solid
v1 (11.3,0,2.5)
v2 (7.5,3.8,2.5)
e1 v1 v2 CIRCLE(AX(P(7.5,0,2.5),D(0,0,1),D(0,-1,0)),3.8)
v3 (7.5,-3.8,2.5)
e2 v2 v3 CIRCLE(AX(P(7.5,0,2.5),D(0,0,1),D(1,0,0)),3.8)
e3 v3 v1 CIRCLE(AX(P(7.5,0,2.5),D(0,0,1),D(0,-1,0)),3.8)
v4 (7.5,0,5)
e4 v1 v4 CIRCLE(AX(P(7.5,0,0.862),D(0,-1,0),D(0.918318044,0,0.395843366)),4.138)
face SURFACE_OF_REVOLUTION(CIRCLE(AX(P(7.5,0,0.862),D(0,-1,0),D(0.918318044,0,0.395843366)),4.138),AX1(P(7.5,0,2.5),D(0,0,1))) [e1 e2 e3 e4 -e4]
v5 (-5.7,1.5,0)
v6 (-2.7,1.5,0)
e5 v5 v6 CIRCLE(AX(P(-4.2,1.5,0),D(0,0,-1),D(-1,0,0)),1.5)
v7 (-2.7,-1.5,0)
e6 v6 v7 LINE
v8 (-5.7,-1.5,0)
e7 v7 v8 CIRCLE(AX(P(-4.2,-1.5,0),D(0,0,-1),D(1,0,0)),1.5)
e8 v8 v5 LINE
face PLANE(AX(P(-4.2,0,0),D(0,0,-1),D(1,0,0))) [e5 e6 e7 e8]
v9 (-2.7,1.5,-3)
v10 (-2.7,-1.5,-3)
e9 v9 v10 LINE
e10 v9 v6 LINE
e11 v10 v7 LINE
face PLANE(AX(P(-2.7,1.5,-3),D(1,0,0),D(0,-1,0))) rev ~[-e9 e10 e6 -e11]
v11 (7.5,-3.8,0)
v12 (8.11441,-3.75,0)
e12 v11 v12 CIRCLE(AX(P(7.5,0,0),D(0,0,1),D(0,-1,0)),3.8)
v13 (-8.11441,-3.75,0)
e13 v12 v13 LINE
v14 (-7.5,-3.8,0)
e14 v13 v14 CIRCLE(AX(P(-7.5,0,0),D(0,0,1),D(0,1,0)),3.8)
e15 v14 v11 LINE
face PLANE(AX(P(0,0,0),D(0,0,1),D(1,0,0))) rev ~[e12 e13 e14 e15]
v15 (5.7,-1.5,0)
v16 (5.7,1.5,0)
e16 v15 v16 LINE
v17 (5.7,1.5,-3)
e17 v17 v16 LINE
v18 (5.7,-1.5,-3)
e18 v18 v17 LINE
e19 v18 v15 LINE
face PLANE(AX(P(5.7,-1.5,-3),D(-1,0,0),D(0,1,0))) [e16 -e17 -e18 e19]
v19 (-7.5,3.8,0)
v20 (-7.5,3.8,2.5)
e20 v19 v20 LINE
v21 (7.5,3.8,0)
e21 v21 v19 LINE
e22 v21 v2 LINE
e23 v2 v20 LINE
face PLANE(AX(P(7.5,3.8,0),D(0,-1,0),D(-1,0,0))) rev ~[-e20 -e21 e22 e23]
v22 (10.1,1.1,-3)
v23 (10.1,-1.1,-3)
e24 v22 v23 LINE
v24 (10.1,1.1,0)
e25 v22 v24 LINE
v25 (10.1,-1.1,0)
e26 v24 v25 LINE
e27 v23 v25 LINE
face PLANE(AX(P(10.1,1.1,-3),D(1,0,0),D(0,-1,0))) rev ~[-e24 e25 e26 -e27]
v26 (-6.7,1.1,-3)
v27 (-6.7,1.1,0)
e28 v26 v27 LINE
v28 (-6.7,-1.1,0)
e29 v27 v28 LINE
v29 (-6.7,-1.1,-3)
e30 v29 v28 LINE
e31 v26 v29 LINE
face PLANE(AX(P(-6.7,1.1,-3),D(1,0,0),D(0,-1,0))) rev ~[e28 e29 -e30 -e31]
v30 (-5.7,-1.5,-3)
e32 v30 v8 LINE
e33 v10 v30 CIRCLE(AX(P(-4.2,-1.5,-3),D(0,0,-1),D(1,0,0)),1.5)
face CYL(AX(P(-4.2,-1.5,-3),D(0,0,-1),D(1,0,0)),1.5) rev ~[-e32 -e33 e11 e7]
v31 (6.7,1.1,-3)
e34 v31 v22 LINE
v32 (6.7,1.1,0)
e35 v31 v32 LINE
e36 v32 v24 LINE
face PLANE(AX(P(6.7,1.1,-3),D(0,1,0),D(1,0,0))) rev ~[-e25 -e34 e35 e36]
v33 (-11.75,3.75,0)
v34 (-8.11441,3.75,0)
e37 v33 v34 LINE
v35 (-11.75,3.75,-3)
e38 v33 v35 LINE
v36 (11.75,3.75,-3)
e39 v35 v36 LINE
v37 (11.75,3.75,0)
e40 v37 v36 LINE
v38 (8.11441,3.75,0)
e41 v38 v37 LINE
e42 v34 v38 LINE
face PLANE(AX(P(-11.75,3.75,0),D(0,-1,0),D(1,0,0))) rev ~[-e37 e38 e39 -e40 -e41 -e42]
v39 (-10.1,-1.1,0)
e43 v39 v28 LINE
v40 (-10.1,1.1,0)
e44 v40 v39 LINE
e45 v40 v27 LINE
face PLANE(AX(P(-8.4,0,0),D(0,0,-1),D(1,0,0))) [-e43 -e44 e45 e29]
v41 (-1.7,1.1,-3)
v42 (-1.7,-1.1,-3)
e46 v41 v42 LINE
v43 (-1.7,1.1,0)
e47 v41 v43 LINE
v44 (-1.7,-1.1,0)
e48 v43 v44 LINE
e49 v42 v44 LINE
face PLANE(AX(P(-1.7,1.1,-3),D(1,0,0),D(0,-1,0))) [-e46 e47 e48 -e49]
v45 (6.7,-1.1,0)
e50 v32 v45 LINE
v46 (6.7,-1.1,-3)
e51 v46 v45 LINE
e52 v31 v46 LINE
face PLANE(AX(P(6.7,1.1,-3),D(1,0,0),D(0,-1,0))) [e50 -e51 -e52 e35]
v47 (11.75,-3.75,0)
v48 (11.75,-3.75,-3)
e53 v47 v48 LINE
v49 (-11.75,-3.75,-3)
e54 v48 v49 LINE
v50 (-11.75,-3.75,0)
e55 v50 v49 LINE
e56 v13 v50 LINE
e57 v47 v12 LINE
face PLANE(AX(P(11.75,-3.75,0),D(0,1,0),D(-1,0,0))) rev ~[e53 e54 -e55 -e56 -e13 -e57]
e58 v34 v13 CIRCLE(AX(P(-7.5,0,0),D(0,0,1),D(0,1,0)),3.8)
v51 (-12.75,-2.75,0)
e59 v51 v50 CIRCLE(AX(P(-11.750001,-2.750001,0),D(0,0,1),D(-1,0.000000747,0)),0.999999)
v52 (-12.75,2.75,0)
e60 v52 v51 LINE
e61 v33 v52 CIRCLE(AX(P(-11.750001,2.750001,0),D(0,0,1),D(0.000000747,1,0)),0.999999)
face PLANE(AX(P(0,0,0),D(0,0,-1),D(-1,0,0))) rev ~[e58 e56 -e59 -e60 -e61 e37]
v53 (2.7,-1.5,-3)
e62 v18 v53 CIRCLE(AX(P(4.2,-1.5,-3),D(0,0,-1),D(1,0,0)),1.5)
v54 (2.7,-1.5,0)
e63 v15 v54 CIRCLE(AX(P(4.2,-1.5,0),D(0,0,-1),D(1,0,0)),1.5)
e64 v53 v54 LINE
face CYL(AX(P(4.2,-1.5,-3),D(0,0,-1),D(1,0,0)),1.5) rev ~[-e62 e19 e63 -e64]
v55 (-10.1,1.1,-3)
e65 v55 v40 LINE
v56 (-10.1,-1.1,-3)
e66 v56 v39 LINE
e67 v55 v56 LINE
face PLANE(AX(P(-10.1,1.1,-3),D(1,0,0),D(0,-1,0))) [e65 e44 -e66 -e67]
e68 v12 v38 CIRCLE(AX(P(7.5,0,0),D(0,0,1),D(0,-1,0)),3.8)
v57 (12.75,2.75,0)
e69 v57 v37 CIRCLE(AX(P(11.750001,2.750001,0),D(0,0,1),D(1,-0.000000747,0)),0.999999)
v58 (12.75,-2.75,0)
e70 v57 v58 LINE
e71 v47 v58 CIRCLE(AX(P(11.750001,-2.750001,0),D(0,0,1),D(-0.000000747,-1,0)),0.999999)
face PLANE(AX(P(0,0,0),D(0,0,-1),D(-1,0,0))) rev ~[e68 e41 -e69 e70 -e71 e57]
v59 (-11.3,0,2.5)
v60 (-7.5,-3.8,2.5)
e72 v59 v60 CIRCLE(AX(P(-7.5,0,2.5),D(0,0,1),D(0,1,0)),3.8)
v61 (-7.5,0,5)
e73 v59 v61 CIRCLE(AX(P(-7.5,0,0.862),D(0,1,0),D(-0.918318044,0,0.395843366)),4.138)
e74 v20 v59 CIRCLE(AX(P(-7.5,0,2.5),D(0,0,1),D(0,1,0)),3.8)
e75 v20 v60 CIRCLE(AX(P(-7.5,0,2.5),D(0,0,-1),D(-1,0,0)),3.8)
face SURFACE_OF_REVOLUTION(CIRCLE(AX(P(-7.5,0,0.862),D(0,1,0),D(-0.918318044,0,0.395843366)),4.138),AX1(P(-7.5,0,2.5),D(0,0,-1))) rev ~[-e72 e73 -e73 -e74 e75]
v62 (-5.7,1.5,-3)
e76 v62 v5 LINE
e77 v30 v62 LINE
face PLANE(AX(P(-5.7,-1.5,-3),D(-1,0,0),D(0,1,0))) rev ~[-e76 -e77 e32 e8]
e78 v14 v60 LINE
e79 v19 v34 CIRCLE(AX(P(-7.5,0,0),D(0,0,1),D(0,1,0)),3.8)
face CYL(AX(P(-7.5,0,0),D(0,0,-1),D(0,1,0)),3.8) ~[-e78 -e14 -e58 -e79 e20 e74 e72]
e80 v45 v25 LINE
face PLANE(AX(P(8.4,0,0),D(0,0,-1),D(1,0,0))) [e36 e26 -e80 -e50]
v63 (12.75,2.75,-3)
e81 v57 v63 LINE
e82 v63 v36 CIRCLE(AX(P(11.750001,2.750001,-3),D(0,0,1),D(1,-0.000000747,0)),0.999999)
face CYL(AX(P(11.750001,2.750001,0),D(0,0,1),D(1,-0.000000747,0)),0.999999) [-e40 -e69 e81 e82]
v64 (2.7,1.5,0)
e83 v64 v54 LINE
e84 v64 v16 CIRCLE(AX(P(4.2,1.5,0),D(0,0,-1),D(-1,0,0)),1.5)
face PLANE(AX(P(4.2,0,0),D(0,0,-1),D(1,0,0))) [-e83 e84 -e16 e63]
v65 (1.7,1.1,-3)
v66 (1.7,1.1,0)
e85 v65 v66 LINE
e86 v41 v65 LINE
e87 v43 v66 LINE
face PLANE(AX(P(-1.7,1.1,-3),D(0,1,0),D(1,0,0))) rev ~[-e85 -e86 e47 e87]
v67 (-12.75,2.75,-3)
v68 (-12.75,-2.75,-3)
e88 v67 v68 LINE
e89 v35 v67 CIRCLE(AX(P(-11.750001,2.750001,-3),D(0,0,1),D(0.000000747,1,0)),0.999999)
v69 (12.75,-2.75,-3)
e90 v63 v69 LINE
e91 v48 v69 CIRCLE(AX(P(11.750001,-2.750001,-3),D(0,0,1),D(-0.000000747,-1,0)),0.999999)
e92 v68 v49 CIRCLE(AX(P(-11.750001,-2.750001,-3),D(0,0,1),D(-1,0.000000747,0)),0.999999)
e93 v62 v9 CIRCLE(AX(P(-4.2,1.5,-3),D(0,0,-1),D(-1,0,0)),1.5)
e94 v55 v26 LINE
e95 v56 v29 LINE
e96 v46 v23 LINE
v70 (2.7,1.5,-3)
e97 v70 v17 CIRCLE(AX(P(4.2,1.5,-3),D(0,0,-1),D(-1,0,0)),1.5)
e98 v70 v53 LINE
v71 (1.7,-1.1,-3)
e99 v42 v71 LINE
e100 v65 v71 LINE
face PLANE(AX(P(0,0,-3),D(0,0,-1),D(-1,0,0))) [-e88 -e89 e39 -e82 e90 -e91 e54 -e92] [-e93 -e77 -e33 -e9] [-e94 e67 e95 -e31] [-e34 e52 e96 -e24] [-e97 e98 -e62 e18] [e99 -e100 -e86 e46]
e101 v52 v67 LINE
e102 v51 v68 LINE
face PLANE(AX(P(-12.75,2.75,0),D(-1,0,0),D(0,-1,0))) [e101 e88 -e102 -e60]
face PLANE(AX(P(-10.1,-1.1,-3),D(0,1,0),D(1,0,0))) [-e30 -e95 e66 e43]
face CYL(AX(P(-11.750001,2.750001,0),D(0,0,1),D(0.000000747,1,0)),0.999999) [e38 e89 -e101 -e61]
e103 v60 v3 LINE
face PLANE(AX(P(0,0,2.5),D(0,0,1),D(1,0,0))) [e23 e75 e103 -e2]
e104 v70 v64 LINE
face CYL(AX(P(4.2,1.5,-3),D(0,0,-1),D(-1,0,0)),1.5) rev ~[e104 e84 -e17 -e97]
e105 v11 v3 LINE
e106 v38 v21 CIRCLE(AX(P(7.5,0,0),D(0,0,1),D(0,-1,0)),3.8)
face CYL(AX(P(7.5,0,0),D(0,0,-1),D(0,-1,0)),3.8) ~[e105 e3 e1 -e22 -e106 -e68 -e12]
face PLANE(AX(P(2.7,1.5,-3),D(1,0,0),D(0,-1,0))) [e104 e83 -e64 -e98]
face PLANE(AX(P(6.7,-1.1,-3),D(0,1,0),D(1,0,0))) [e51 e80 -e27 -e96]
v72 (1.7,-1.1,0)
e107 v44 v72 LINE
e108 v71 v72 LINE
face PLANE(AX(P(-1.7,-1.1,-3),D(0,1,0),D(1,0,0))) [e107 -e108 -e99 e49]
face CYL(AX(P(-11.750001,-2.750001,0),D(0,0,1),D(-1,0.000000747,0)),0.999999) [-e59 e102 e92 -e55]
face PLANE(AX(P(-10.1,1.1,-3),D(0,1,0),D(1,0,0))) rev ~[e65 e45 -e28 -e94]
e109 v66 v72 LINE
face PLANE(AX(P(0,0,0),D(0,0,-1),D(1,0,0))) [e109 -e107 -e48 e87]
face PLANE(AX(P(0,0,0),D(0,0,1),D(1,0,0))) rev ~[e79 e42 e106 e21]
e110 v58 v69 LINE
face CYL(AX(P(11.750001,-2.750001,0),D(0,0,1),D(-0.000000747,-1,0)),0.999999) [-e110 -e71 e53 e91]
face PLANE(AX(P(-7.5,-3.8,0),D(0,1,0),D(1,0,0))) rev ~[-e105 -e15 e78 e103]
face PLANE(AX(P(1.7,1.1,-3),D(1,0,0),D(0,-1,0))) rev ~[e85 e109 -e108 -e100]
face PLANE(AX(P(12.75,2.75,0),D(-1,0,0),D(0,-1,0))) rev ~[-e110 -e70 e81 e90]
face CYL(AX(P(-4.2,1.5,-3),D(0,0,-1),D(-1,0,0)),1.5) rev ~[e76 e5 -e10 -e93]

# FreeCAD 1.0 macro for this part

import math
import FreeCAD as App
import Part
import Sketcher


def add_polygon(sketch, points):
    """Adds a closed chain of lines whose ends are joined by coincident constraints."""
    first, n = sketch.GeometryCount, len(points)
    for a, b in zip(points, points[1:] + points[:1]):
        sketch.addGeometry(Part.LineSegment(App.Vector(*a, 0), App.Vector(*b, 0)), False)
    for i in range(n):
        sketch.addConstraint(Sketcher.Constraint("Coincident", first + i, 2, first + (i + 1) % n, 1))

doc = App.newDocument("Part")
body = doc.addObject("PartDesign::Body", "Body")

sketch1 = doc.addObject("Sketcher::SketchObject", "Sketch")
body.addObject(sketch1)
sketch1.AttachmentSupport = (doc.XY_Plane, [""])
sketch1.MapMode = "FlatFace"
sketch1.addGeometry([
    Part.ArcOfCircle(Part.Circle(App.Vector(-7.5, 0, 0), App.Vector(0, 0, 1), 3.8), math.radians(90), math.radians(270)),
    Part.LineSegment(App.Vector(-7.5, -3.8, 0), App.Vector(7.5, -3.8, 0)),
    Part.ArcOfCircle(Part.Circle(App.Vector(7.5, 0, 0), App.Vector(0, 0, 1), 3.8), math.radians(-90), math.radians(90)),
    Part.LineSegment(App.Vector(7.5, 3.8, 0), App.Vector(-7.5, 3.8, 0)),
], False)
sketch1.addConstraint([
    Sketcher.Constraint("Tangent", 0, 2, 1, 1),
    Sketcher.Constraint("Tangent", 1, 2, 2, 1),
    Sketcher.Constraint("Tangent", 2, 2, 3, 1),
    Sketcher.Constraint("Tangent", 3, 2, 0, 1),
    Sketcher.Constraint("Horizontal", 1),
    Sketcher.Constraint("Horizontal", 3),
    Sketcher.Constraint("Symmetric", 0, 3, 2, 3, -1, 1),
    Sketcher.Constraint("Radius", 0, 3.8),
    Sketcher.Constraint("DistanceX", 1, 1, 1, 2, 15.0),
])
pad1 = doc.addObject("PartDesign::Pad", "Pad")
body.addObject(pad1)
pad1.Profile = sketch1
pad1.Length = 2.5

sketch2 = doc.addObject("Sketcher::SketchObject", "Sketch001")
body.addObject(sketch2)
sketch2.AttachmentSupport = (doc.XY_Plane, [""])
sketch2.MapMode = "FlatFace"
sketch2.addGeometry([
    Part.LineSegment(App.Vector(11.8, 3.8, 0), App.Vector(-11.8, 3.8, 0)),
    Part.ArcOfCircle(Part.Circle(App.Vector(-11.8, 2.8, 0), App.Vector(0, 0, 1), 1), math.radians(90), math.radians(180)),
    Part.LineSegment(App.Vector(-12.8, 2.8, 0), App.Vector(-12.8, -2.8, 0)),
    Part.ArcOfCircle(Part.Circle(App.Vector(-11.8, -2.8, 0), App.Vector(0, 0, 1), 1), math.radians(180), math.radians(270)),
    Part.LineSegment(App.Vector(-11.8, -3.8, 0), App.Vector(11.8, -3.8, 0)),
    Part.ArcOfCircle(Part.Circle(App.Vector(11.8, -2.8, 0), App.Vector(0, 0, 1), 1), math.radians(-90), math.radians(0)),
    Part.LineSegment(App.Vector(12.8, -2.8, 0), App.Vector(12.8, 2.8, 0)),
    Part.ArcOfCircle(Part.Circle(App.Vector(11.8, 2.8, 0), App.Vector(0, 0, 1), 1), math.radians(0), math.radians(90)),
], False)
sketch2.addConstraint([
    Sketcher.Constraint("Tangent", 0, 2, 1, 1),
    Sketcher.Constraint("Tangent", 1, 2, 2, 1),
    Sketcher.Constraint("Tangent", 2, 2, 3, 1),
    Sketcher.Constraint("Tangent", 3, 2, 4, 1),
    Sketcher.Constraint("Tangent", 4, 2, 5, 1),
    Sketcher.Constraint("Tangent", 5, 2, 6, 1),
    Sketcher.Constraint("Tangent", 6, 2, 7, 1),
    Sketcher.Constraint("Tangent", 7, 2, 0, 1),
    Sketcher.Constraint("Horizontal", 0),
    Sketcher.Constraint("Vertical", 2),
    Sketcher.Constraint("Horizontal", 4),
    Sketcher.Constraint("Vertical", 6),
    Sketcher.Constraint("Equal", 1, 3),
    Sketcher.Constraint("Equal", 3, 5),
    Sketcher.Constraint("Equal", 5, 7),
    Sketcher.Constraint("Symmetric", 1, 3, 5, 3, -1, 1),
    Sketcher.Constraint("Radius", 1, 0.999999),
    Sketcher.Constraint("DistanceX", 0, 2, 0, 1, 23.5),
    Sketcher.Constraint("DistanceY", 2, 2, 2, 1, 5.5),
])
pad2 = doc.addObject("PartDesign::Pad", "Pad001")
body.addObject(pad2)
pad2.Profile = sketch2
pad2.Length = 3
pad2.Reversed = True

sketch3 = doc.addObject("Sketcher::SketchObject", "Sketch002")
body.addObject(sketch3)
sketch3.AttachmentSupport = (doc.XY_Plane, [""])
sketch3.MapMode = "FlatFace"
sketch3.AttachmentOffset = App.Placement(App.Vector(0, 0, -3), App.Rotation())
add_polygon(sketch3, [(-10.1, -1.1), (-10.1, 1.1), (-6.7, 1.1), (-6.7, -1.1)])
add_polygon(sketch3, [(6.7, -1.1), (6.7, 1.1), (10.1, 1.1), (10.1, -1.1)])
add_polygon(sketch3, [(-1.7, -1.1), (-1.7, 1.1), (1.7, 1.1), (1.7, -1.1)])
sketch3.addGeometry(Part.ArcOfCircle(Part.Circle(App.Vector(-4.2, -1.5, 0), App.Vector(0, 0, 1), 1.5), math.radians(180), math.radians(360)), False)
sketch3.addGeometry(Part.LineSegment(App.Vector(-5.7, -1.5, 0), App.Vector(-5.7, 1.5, 0)), False)
sketch3.addGeometry(Part.ArcOfCircle(Part.Circle(App.Vector(-4.2, 1.5, 0), App.Vector(0, 0, 1), 1.5), math.radians(0), math.radians(180)), False)
sketch3.addGeometry(Part.LineSegment(App.Vector(-2.7, 1.5, 0), App.Vector(-2.7, -1.5, 0)), False)
sketch3.addGeometry(Part.ArcOfCircle(Part.Circle(App.Vector(4.2, -1.5, 0), App.Vector(0, 0, 1), 1.5), math.radians(180), math.radians(360)), False)
sketch3.addGeometry(Part.LineSegment(App.Vector(2.7, -1.5, 0), App.Vector(2.7, 1.5, 0)), False)
sketch3.addGeometry(Part.ArcOfCircle(Part.Circle(App.Vector(4.2, 1.5, 0), App.Vector(0, 0, 1), 1.5), math.radians(0), math.radians(180)), False)
sketch3.addGeometry(Part.LineSegment(App.Vector(5.7, 1.5, 0), App.Vector(5.7, -1.5, 0)), False)
sketch3.addConstraint([
    Sketcher.Constraint("Tangent", 12, 1, 13, 1),
    Sketcher.Constraint("Tangent", 13, 2, 14, 2),
    Sketcher.Constraint("Tangent", 14, 1, 15, 1),
    Sketcher.Constraint("Tangent", 15, 2, 12, 2),
    Sketcher.Constraint("Tangent", 16, 1, 17, 1),
    Sketcher.Constraint("Tangent", 17, 2, 18, 2),
    Sketcher.Constraint("Tangent", 18, 1, 19, 1),
    Sketcher.Constraint("Tangent", 19, 2, 16, 2),
    Sketcher.Constraint("Vertical", 0),
    Sketcher.Constraint("Horizontal", 1),
    Sketcher.Constraint("Vertical", 2),
    Sketcher.Constraint("Horizontal", 3),
    Sketcher.Constraint("Vertical", 4),
    Sketcher.Constraint("Horizontal", 5),
    Sketcher.Constraint("Vertical", 6),
    Sketcher.Constraint("Horizontal", 7),
    Sketcher.Constraint("Vertical", 8),
    Sketcher.Constraint("Horizontal", 9),
    Sketcher.Constraint("Vertical", 10),
    Sketcher.Constraint("Horizontal", 11),
    Sketcher.Constraint("Vertical", 13),
    Sketcher.Constraint("Vertical", 15),
    Sketcher.Constraint("Vertical", 17),
    Sketcher.Constraint("Vertical", 19),
    Sketcher.Constraint("Equal", 14, 16),
    Sketcher.Constraint("Symmetric", 14, 3, 16, 3, -1, 1),
    Sketcher.Constraint("Symmetric", 2, 2, 4, 2, -1, 1),
    Sketcher.Constraint("Symmetric", 0, 2, 6, 2, -1, 1),
    Sketcher.Constraint("Symmetric", 8, 2, 10, 2, -1, 1),
    Sketcher.Constraint("Horizontal", 12, 3, 16, 3),
    Sketcher.Constraint("Horizontal", 14, 3, 18, 3),
    Sketcher.Constraint("Horizontal", 1, 2, 4, 2),
    Sketcher.Constraint("Horizontal", 5, 2, 8, 2),
    Sketcher.Constraint("Equal", 7, 9),
    Sketcher.Constraint("Radius", 12, 1.5),
    Sketcher.Constraint("DistanceY", 13, 1, 13, 2, 3.0),
    Sketcher.Constraint("DistanceX", 1, 1, 1, 2, 3.4),
    Sketcher.Constraint("DistanceY", 0, 1, 0, 2, 2.2),
    Sketcher.Constraint("DistanceX", 1, 2, 8, 2, 5.0),
    Sketcher.Constraint("DistanceX", 2, 2, 12, 1, 1.0),
])
pocket1 = doc.addObject("PartDesign::Pocket", "Pocket")
body.addObject(pocket1)
pocket1.Profile = sketch3
pocket1.Length = 3
pocket1.Reversed = True
body2 = doc.addObject("PartDesign::Body", "Body001")
doc.recompute()

body.Placement = App.Placement(App.Vector(0, 0, 12.5), App.Rotation(App.Vector(0, 0, 1), 0))
boolean = doc.addObject("PartDesign::Boolean", "Boolean")
body2.addObject(boolean)
boolean.Type = "Fuse"
boolean.addObjects([body])
body3 = doc.addObject("PartDesign::Body", "Body002")
doc.recompute()

body2.Placement = App.Placement(App.Vector(0, 0, -12.5), App.Rotation(App.Vector(0, 0, 1), 0))
boolean2 = doc.addObject("PartDesign::Boolean", "Boolean001")
body3.addObject(boolean2)
boolean2.Type = "Fuse"
boolean2.addObjects([body2])

sketch4 = doc.addObject("Sketcher::SketchObject", "Sketch003")
body3.addObject(sketch4)
sketch4.AttachmentSupport = (doc.getObject("XZ_Plane002"), [""])
sketch4.MapMode = "FlatFace"
sketch4.addGeometry([
    Part.LineSegment(App.Vector(7.5, 5, 0), App.Vector(7.5, 2.5, 0)),
    Part.LineSegment(App.Vector(7.5, 2.5, 0), App.Vector(11.3, 2.5, 0)),
    Part.ArcOfCircle(Part.Circle(App.Vector(7.5, 0.9, 0), App.Vector(0, 0, 1), 4.1), math.radians(23), math.radians(90)),
], False)
sketch4.addGeometry(Part.LineSegment(App.Vector(7.5, 0.9, 0), App.Vector(7.5, 5, 0)), True)
sketch4.addConstraint([
    Sketcher.Constraint("Coincident", 0, 2, 1, 1),
    Sketcher.Constraint("Coincident", 1, 2, 2, 1),
    Sketcher.Constraint("Coincident", 2, 2, 0, 1),
    Sketcher.Constraint("Vertical", 0),
    Sketcher.Constraint("Horizontal", 1),
    Sketcher.Constraint("Vertical", 3),
    Sketcher.Constraint("Coincident", 3, 1, 2, 3),
    Sketcher.Constraint("Coincident", 3, 2, 2, 2),
    Sketcher.Constraint("DistanceX", 1, 1, 1, 2, 3.8),
    Sketcher.Constraint("DistanceY", 0, 2, 0, 1, 2.5),
    Sketcher.Constraint("DistanceY", -1, 1, 2, 2, 5.0),
    Sketcher.Constraint("DistanceX", -1, 1, 2, 3, 7.5),
])
revolution = doc.addObject("PartDesign::Revolution", "Revolution")
body3.addObject(revolution)
revolution.Profile = sketch4
revolution.ReferenceAxis = (sketch4, ["Axis0"])
revolution.Angle = 360
doc.recompute()

mirrored = doc.addObject("PartDesign::Mirrored", "Mirrored")
body3.addObject(mirrored)
mirrored.Originals = [revolution]
mirrored.MirrorPlane = (doc.getObject("YZ_Plane002"), [""])
body3.Tip = mirrored

doc.recompute()
